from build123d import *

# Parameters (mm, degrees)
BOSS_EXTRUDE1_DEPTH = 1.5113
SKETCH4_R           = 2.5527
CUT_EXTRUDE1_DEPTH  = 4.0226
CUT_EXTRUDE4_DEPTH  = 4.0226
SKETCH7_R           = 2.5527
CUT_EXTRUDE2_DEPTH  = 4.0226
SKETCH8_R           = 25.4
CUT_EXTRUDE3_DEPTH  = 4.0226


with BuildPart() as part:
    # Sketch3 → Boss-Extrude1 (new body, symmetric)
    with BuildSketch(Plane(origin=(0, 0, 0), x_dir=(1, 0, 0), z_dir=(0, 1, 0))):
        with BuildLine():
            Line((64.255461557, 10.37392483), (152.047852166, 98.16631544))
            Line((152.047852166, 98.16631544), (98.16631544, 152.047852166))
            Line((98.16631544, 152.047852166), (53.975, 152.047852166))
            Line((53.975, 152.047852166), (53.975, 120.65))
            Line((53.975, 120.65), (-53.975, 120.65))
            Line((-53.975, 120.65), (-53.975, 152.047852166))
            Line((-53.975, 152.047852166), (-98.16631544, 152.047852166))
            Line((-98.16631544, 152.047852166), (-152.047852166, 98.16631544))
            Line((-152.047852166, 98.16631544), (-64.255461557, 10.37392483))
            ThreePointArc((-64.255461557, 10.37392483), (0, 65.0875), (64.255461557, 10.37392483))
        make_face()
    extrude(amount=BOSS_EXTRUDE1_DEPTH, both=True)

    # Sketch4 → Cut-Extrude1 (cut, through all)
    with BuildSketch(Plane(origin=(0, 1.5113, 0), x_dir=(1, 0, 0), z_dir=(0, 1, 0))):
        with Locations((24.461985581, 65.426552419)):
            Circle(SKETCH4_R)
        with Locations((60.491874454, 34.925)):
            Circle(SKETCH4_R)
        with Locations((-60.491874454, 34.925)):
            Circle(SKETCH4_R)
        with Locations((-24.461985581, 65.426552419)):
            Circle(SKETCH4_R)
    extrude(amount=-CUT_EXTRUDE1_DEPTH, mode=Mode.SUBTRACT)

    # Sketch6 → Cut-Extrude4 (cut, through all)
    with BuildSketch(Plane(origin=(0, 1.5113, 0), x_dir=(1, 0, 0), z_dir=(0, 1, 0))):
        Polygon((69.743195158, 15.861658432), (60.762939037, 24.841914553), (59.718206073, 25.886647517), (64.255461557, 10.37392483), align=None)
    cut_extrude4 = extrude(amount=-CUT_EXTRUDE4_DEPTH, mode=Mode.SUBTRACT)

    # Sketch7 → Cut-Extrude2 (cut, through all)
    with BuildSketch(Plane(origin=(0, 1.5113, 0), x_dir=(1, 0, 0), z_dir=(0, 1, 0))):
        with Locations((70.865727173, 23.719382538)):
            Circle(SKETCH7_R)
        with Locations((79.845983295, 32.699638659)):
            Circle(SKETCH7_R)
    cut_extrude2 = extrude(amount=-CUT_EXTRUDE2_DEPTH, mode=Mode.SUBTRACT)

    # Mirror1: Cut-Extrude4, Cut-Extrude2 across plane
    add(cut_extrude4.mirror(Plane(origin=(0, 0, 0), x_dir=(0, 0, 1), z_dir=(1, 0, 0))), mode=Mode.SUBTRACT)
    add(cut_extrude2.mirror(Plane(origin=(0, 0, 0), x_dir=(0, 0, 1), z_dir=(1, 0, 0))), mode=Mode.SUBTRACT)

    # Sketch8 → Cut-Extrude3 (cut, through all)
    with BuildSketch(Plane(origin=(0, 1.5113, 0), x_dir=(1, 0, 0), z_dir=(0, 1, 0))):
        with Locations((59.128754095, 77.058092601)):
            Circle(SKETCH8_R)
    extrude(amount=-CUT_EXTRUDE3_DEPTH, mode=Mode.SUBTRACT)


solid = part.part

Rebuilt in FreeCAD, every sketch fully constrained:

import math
import FreeCAD as App
import Part
import Sketcher
from FreeCAD import Vector
Q = App.Units.Quantity


def add_polygon(sketch, points):
    """Adds a closed chain of lines whose ends are joined by coincident constraints."""
    first, n = sketch.GeometryCount, len(points)
    for a, b in zip(points, points[1:] + points[:1]):
        sketch.addGeometry(Part.LineSegment(App.Vector(*a, 0), App.Vector(*b, 0)), False)
    for i in range(n):
        sketch.addConstraint(Sketcher.Constraint("Coincident", first + i, 2, first + (i + 1) % n, 1))

doc = App.newDocument("Part")
body = doc.addObject("PartDesign::Body", "Body")

# Sketch on XZ plane
sketch1 = body.newObject("Sketcher::SketchObject", "Sketch")
sketch1.AttachmentSupport = (doc.getObject("XZ_Plane"), [""])
sketch1.MapMode = "FlatFace"
sketch1.addGeometry(Part.LineSegment(Vector(64.255462, -10.373925, 0), Vector(152.047852, -98.166315, 0)), False)
sketch1.addGeometry(Part.LineSegment(Vector(152.047852, -98.166315, 0), Vector(98.166315, -152.047852, 0)), False)
sketch1.addGeometry(Part.LineSegment(Vector(98.166315, -152.047852, 0), Vector(53.975, -152.047852, 0)), False)
sketch1.addGeometry(Part.LineSegment(Vector(53.975, -152.047852, 0), Vector(53.975, -120.65, 0)), False)
sketch1.addGeometry(Part.LineSegment(Vector(53.975, -120.65, 0), Vector(-53.975, -120.65, 0)), False)
sketch1.addGeometry(Part.LineSegment(Vector(-53.975, -120.65, 0), Vector(-53.975, -152.047852, 0)), False)
sketch1.addGeometry(Part.LineSegment(Vector(-53.975, -152.047852, 0), Vector(-98.166315, -152.047852, 0)), False)
sketch1.addGeometry(Part.LineSegment(Vector(-98.166315, -152.047852, 0), Vector(-152.047852, -98.166315, 0)), False)
sketch1.addGeometry(Part.LineSegment(Vector(-152.047852, -98.166315, 0), Vector(-64.255462, -10.373925, 0)), False)
sketch1.addGeometry(Part.ArcOfCircle(Part.Circle(Vector(0, 0, 0), Vector(0, 0, 1), 65.0875), math.radians(-170.82884), math.radians(-9.17116)), False)
sketch1.addConstraint(Sketcher.Constraint("Coincident", 0, 2, 1, 1))
sketch1.addConstraint(Sketcher.Constraint("Coincident", 1, 2, 2, 1))
sketch1.addConstraint(Sketcher.Constraint("Coincident", 2, 2, 3, 1))
sketch1.addConstraint(Sketcher.Constraint("Coincident", 3, 2, 4, 1))
sketch1.addConstraint(Sketcher.Constraint("Coincident", 4, 2, 5, 1))
sketch1.addConstraint(Sketcher.Constraint("Coincident", 5, 2, 6, 1))
sketch1.addConstraint(Sketcher.Constraint("Coincident", 6, 2, 7, 1))
sketch1.addConstraint(Sketcher.Constraint("Coincident", 7, 2, 8, 1))
sketch1.addConstraint(Sketcher.Constraint("Coincident", 8, 2, 9, 1))
sketch1.addConstraint(Sketcher.Constraint("Coincident", 9, 2, 0, 1))
sketch1.addConstraint(Sketcher.Constraint("Horizontal", 2))
sketch1.addConstraint(Sketcher.Constraint("Vertical", 3))
sketch1.addConstraint(Sketcher.Constraint("Horizontal", 4))
sketch1.addConstraint(Sketcher.Constraint("Vertical", 5))
sketch1.addConstraint(Sketcher.Constraint("Horizontal", 6))
sketch1.addConstraint(Sketcher.Constraint("Coincident", 9, 3, -1, 1))
sketch1.addConstraint(Sketcher.Constraint("Symmetric", 2, 2, 5, 2, -2))
sketch1.addConstraint(Sketcher.Constraint("Symmetric", 0, 2, 7, 2, -2))
sketch1.addConstraint(Sketcher.Constraint("Perpendicular", 0, 1))
sketch1.addConstraint(Sketcher.Constraint("Perpendicular", 1, 7))
sketch1.addConstraint(Sketcher.Constraint("Perpendicular", 7, 8))
sketch1.addConstraint(Sketcher.Constraint("Horizontal", 8, 2, 9, 2))
sketch1.addConstraint(Sketcher.Constraint("Distance", 1, Q("3 in")))
sketch1.addConstraint(Sketcher.Constraint("Radius", 9, Q("2.5625 in")))
sketch1.addConstraint(Sketcher.Constraint("DistanceX", 4, 2, 4, 1, Q("4.25 in")))
sketch1.addConstraint(Sketcher.Constraint("DistanceY", 3, 2, -1, 1, Q("4.75 in")))
sketch1.addConstraint(Sketcher.Constraint("Distance", 0, 124.157189))
sketch1.addConstraint(Sketcher.Constraint("DistanceX", 2, 2, 2, 1, 44.191315))
pad1 = body.newObject("PartDesign::Pad", "Pad")
pad1.Profile = sketch1
pad1.Length = Q("0.119 in")
pad1.Midplane = True

# Sketch on XZ plane
sketch2 = body.newObject("Sketcher::SketchObject", "Sketch001")
sketch2.AttachmentSupport = (doc.getObject("XZ_Plane"), [""])
sketch2.MapMode = "FlatFace"
sketch2.AttachmentOffset = App.Placement(Vector(0, 0, -0.0595 * 25.4), App.Rotation())
sketch2.addGeometry(Part.Circle(Vector(24.461986, -65.426552, 0), Vector(0, 0, 1), 2.5527), False)
sketch2.addGeometry(Part.Circle(Vector(60.491874, -34.925, 0), Vector(0, 0, 1), 2.5527), False)
sketch2.addGeometry(Part.Circle(Vector(-60.491874, -34.925, 0), Vector(0, 0, 1), 2.5527), False)
sketch2.addGeometry(Part.Circle(Vector(-24.461986, -65.426552, 0), Vector(0, 0, 1), 2.5527), False)
sketch2.addConstraint(Sketcher.Constraint("Equal", 0, 1))
sketch2.addConstraint(Sketcher.Constraint("Equal", 1, 2))
sketch2.addConstraint(Sketcher.Constraint("Equal", 2, 3))
sketch2.addConstraint(Sketcher.Constraint("Symmetric", 1, 3, 2, 3, -2))
sketch2.addConstraint(Sketcher.Constraint("Symmetric", 0, 3, 3, 3, -2))
sketch2.addConstraint(Sketcher.Constraint("Diameter", 0, Q("0.201 in")))
sketch2.addConstraint(Sketcher.Constraint("DistanceY", 1, 3, -1, 1, Q("1.375 in")))
sketch2.addConstraint(Sketcher.Constraint("DistanceX", 0, 3, 1, 3, 36.029889))
sketch2.addConstraint(Sketcher.Constraint("DistanceX", 2, 3, 0, 3, 84.95386))
sketch2.addConstraint(Sketcher.Constraint("DistanceY", 0, 3, -1, 1, 65.426552))
pocket1 = body.newObject("PartDesign::Pocket", "Pocket")
pocket1.Profile = sketch2
pocket1.Type = "ThroughAll"
pocket1.Reversed = True

# Sketch on XZ plane
sketch3 = body.newObject("Sketcher::SketchObject", "Sketch002")
sketch3.AttachmentSupport = (doc.getObject("XZ_Plane"), [""])
sketch3.MapMode = "FlatFace"
sketch3.AttachmentOffset = App.Placement(Vector(0, 0, -0.0595 * 25.4), App.Rotation())
add_polygon(sketch3, [(69.743195, -15.861658), (59.718206, -25.886648), (64.255462, -10.373925)])  # lines 0-2
sketch3.addConstraint(Sketcher.Constraint("Perpendicular", 0, 2))
sketch3.addConstraint(Sketcher.Constraint("Angle", 0, Q("-135 deg")))
sketch3.addConstraint(Sketcher.Constraint("Distance", 1, 16.16265))
sketch3.addConstraint(Sketcher.Constraint("DistanceX", -1, 1, 1, 2, 64.255462))
sketch3.addConstraint(Sketcher.Constraint("DistanceY", 2, 2, -1, 1, 15.861658))
sketch3.addConstraint(Sketcher.Constraint("DistanceX", 0, 2, 2, 2, 10.024989))
pocket2 = body.newObject("PartDesign::Pocket", "Pocket001")
pocket2.Profile = sketch3
pocket2.Type = "ThroughAll"
pocket2.Reversed = True

# Sketch on XZ plane
sketch4 = body.newObject("Sketcher::SketchObject", "Sketch003")
sketch4.AttachmentSupport = (doc.getObject("XZ_Plane"), [""])
sketch4.MapMode = "FlatFace"
sketch4.AttachmentOffset = App.Placement(Vector(0, 0, -0.0595 * 25.4), App.Rotation())
sketch4.addGeometry(Part.Circle(Vector(70.865727, -23.719383, 0), Vector(0, 0, 1), 2.5527), False)
sketch4.addGeometry(Part.Circle(Vector(79.845983, -32.699639, 0), Vector(0, 0, 1), 2.5527), False)
sketch4.addConstraint(Sketcher.Constraint("Equal", 0, 1))
sketch4.addConstraint(Sketcher.Constraint("Diameter", 0, Q("0.201 in")))
sketch4.addConstraint(Sketcher.Constraint("DistanceY", 1, 3, -1, 1, 32.699639))
sketch4.addConstraint(Sketcher.Constraint("DistanceX", -1, 1, 0, 3, 70.865727))
sketch4.addConstraint(Sketcher.Constraint("DistanceY", 0, 3, -1, 1, 23.719383))
sketch4.addConstraint(Sketcher.Constraint("DistanceX", -1, 1, 1, 3, 79.845983))
pocket3 = body.newObject("PartDesign::Pocket", "Pocket002")
pocket3.Profile = sketch4
pocket3.Type = "ThroughAll"
pocket3.Reversed = True
doc.recompute()

mirrored = body.newObject("PartDesign::Mirrored", "Mirrored")
mirrored.Originals = [pocket2, pocket3]
mirrored.MirrorPlane = (doc.getObject("YZ_Plane"), [""])
body.Tip = mirrored

# Sketch on XZ plane
sketch5 = body.newObject("Sketcher::SketchObject", "Sketch004")
sketch5.AttachmentSupport = (doc.getObject("XZ_Plane"), [""])
sketch5.MapMode = "FlatFace"
sketch5.AttachmentOffset = App.Placement(Vector(0, 0, -0.0595 * 25.4), App.Rotation())
sketch5.addGeometry(Part.Circle(Vector(59.128754, -77.058093, 0), Vector(0, 0, 1), 25.4), False)
sketch5.addConstraint(Sketcher.Constraint("Diameter", 0, Q("2 in")))
sketch5.addConstraint(Sketcher.Constraint("DistanceX", -1, 1, 0, 3, 59.128754))
sketch5.addConstraint(Sketcher.Constraint("DistanceY", 0, 3, -1, 1, 77.058093))
pocket4 = body.newObject("PartDesign::Pocket", "Pocket003")
pocket4.Profile = sketch5
pocket4.Type = "ThroughAll"
pocket4.Reversed = True

doc.recompute()
